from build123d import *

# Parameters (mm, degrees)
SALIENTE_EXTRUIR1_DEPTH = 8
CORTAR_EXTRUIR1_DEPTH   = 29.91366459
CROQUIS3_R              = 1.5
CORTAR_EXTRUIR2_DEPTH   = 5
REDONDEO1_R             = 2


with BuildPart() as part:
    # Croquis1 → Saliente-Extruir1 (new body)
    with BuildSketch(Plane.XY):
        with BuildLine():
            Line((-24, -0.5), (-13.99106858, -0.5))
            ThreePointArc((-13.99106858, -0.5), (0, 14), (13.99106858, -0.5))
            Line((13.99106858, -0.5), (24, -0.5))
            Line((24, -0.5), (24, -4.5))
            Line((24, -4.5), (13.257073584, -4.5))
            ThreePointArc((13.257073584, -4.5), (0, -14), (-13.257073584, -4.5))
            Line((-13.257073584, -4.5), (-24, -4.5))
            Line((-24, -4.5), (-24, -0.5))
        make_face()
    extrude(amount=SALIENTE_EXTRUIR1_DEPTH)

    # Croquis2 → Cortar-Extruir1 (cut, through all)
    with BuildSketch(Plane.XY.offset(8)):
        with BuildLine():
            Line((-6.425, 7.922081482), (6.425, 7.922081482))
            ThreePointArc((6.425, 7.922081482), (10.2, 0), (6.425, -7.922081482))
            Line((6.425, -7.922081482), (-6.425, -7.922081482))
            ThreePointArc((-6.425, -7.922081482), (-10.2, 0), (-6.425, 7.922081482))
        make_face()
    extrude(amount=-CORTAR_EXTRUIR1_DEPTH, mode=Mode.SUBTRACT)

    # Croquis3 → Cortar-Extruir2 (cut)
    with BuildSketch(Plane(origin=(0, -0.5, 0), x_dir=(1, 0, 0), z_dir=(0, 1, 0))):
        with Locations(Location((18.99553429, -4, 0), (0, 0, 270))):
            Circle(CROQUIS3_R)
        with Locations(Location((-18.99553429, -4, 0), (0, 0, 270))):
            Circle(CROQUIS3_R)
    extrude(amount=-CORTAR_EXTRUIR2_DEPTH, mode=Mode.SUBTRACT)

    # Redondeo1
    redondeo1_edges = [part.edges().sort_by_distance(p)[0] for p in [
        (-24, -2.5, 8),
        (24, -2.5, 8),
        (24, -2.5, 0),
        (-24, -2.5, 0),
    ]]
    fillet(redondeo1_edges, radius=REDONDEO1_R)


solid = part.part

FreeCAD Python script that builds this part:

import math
import FreeCAD as App
import Part
import Sketcher
Q = App.Units.Quantity


def edges_at(feature, points):
    """Names of the edges that pass closest to the given points."""
    edges = feature.Shape.Edges
    near = lambda p: min(range(len(edges)), key=lambda i: edges[i].distToShape(Part.Vertex(*p))[0])
    return sorted({f"Edge{near(p) + 1}" for p in points})

doc = App.newDocument("Part")
body = doc.addObject("PartDesign::Body", "Body")

# Sketch on XY plane
sketch1 = body.newObject("Sketcher::SketchObject", "Sketch")
sketch1.AttachmentSupport = (doc.getObject("XY_Plane"), [""])
sketch1.MapMode = "FlatFace"
sketch1.addGeometry([
    Part.LineSegment(App.Vector(-14, -0.5, 0), App.Vector(-24, -0.5, 0)),  # 0
    Part.LineSegment(App.Vector(-24, -0.5, 0), App.Vector(-24, -4.5, 0)),  # 1
    Part.LineSegment(App.Vector(-24, -4.5, 0), App.Vector(-13.3, -4.5, 0)),  # 2
    Part.ArcOfCircle(Part.Circle(App.Vector(0, 0, 0), App.Vector(0, 0, 1), 14), math.radians(-161), math.radians(-19)),  # 3
    Part.LineSegment(App.Vector(13.3, -4.5, 0), App.Vector(24, -4.5, 0)),  # 4
    Part.LineSegment(App.Vector(24, -4.5, 0), App.Vector(24, -0.5, 0)),  # 5
    Part.LineSegment(App.Vector(24, -0.5, 0), App.Vector(14, -0.5, 0)),  # 6
    Part.ArcOfCircle(Part.Circle(App.Vector(0, 0, 0), App.Vector(0, 0, 1), 14), math.radians(-2), math.radians(182)),  # 7
], False)
sketch1.addConstraint([
    Sketcher.Constraint("Coincident", 0, 2, 1, 1),
    Sketcher.Constraint("Coincident", 1, 2, 2, 1),
    Sketcher.Constraint("Coincident", 2, 2, 3, 1),
    Sketcher.Constraint("Coincident", 3, 2, 4, 1),
    Sketcher.Constraint("Coincident", 4, 2, 5, 1),
    Sketcher.Constraint("Coincident", 5, 2, 6, 1),
    Sketcher.Constraint("Coincident", 6, 2, 7, 1),
    Sketcher.Constraint("Coincident", 7, 2, 0, 1),
    Sketcher.Constraint("Horizontal", 0),
    Sketcher.Constraint("Vertical", 1),
    Sketcher.Constraint("Horizontal", 2),
    Sketcher.Constraint("Horizontal", 4),
    Sketcher.Constraint("Vertical", 5),
    Sketcher.Constraint("Horizontal", 6),
    Sketcher.Constraint("Coincident", 3, 3, -1, 1),
    Sketcher.Constraint("Coincident", 7, 3, -1, 1),
    Sketcher.Constraint("Equal", 3, 7),
    Sketcher.Constraint("Symmetric", 1, 2, 4, 2, -2),
    Sketcher.Constraint("Horizontal", 0, 2, 5, 2),
    Sketcher.Constraint("Radius", 3, Q("14 mm")),
    Sketcher.Constraint("DistanceY", 1, 2, 1, 1, Q("4 mm")),
    Sketcher.Constraint("DistanceX", 0, 2, -1, 1, Q("24 mm")),
    Sketcher.Constraint("DistanceY", 0, 2, -1, 1, Q("0.5 mm")),
])
pad1 = body.newObject("PartDesign::Pad", "Pad")
pad1.Profile = sketch1
pad1.Length = 8

# Sketch on XY plane
sketch2 = body.newObject("Sketcher::SketchObject", "Sketch001")
sketch2.AttachmentSupport = (doc.getObject("XY_Plane"), [""])
sketch2.MapMode = "FlatFace"
sketch2.AttachmentOffset = App.Placement(App.Vector(0, 0, 8), App.Rotation())
sketch2.addGeometry([
    Part.LineSegment(App.Vector(6, 8, 0), App.Vector(-6, 8, 0)),
    Part.ArcOfCircle(Part.Circle(App.Vector(0, 0, 0), App.Vector(0, 0, 1), 10), math.radians(129), math.radians(231)),
    Part.LineSegment(App.Vector(-6, -8, 0), App.Vector(6, -8, 0)),
    Part.ArcOfCircle(Part.Circle(App.Vector(0, 0, 0), App.Vector(0, 0, 1), 10), math.radians(-51), math.radians(51)),
], False)
sketch2.addConstraint([
    Sketcher.Constraint("Coincident", 0, 2, 1, 1),
    Sketcher.Constraint("Coincident", 1, 2, 2, 1),
    Sketcher.Constraint("Coincident", 2, 2, 3, 1),
    Sketcher.Constraint("Coincident", 3, 2, 0, 1),
    Sketcher.Constraint("Horizontal", 0),
    Sketcher.Constraint("Horizontal", 2),
    Sketcher.Constraint("Coincident", 1, 3, -1, 1),
    Sketcher.Constraint("Coincident", 3, 3, -1, 1),
    Sketcher.Constraint("Equal", 1, 3),
    Sketcher.Constraint("Vertical", 0, 2, 1, 2),
    Sketcher.Constraint("Radius", 1, Q("10.2 mm")),
    Sketcher.Constraint("DistanceX", 0, 2, 0, 1, Q("12.85 mm")),
])
pocket1 = body.newObject("PartDesign::Pocket", "Pocket")
pocket1.Profile = sketch2
pocket1.Type = "ThroughAll"

# Sketch on XZ plane
sketch3 = body.newObject("Sketcher::SketchObject", "Sketch002")
sketch3.AttachmentSupport = (doc.getObject("XZ_Plane"), [""])
sketch3.MapMode = "FlatFace"
sketch3.AttachmentOffset = App.Placement(App.Vector(0, 0, 0.5), App.Rotation())
sketch3.addGeometry([
    Part.Circle(App.Vector(19, 4, 0), App.Vector(0, 0, 1), 1.5),
    Part.Circle(App.Vector(-19, 4, 0), App.Vector(0, 0, 1), 1.5),
], False)
sketch3.addConstraint([
    Sketcher.Constraint("Equal", 0, 1),
    Sketcher.Constraint("Symmetric", 0, 3, 1, 3, -2),
    Sketcher.Constraint("Diameter", 0, Q("3 mm")),
    Sketcher.Constraint("DistanceY", -1, 1, 0, 3, Q("4 mm")),
    Sketcher.Constraint("DistanceX", 1, 3, 0, 3, Q("37.991069 mm")),
])
pocket2 = body.newObject("PartDesign::Pocket", "Pocket001")
pocket2.Profile = sketch3
pocket2.Length = 5
pocket2.Reversed = True
doc.recompute()

fillet = body.newObject("PartDesign::Fillet", "Fillet")
fillet.Base = (pocket2, edges_at(pocket2, [
    (-24, -2.5, 8),
    (24, -2.5, 8),
    (24, -2.5, 0),
    (-24, -2.5, 0),
]))
fillet.Radius = 2

doc.recompute()
